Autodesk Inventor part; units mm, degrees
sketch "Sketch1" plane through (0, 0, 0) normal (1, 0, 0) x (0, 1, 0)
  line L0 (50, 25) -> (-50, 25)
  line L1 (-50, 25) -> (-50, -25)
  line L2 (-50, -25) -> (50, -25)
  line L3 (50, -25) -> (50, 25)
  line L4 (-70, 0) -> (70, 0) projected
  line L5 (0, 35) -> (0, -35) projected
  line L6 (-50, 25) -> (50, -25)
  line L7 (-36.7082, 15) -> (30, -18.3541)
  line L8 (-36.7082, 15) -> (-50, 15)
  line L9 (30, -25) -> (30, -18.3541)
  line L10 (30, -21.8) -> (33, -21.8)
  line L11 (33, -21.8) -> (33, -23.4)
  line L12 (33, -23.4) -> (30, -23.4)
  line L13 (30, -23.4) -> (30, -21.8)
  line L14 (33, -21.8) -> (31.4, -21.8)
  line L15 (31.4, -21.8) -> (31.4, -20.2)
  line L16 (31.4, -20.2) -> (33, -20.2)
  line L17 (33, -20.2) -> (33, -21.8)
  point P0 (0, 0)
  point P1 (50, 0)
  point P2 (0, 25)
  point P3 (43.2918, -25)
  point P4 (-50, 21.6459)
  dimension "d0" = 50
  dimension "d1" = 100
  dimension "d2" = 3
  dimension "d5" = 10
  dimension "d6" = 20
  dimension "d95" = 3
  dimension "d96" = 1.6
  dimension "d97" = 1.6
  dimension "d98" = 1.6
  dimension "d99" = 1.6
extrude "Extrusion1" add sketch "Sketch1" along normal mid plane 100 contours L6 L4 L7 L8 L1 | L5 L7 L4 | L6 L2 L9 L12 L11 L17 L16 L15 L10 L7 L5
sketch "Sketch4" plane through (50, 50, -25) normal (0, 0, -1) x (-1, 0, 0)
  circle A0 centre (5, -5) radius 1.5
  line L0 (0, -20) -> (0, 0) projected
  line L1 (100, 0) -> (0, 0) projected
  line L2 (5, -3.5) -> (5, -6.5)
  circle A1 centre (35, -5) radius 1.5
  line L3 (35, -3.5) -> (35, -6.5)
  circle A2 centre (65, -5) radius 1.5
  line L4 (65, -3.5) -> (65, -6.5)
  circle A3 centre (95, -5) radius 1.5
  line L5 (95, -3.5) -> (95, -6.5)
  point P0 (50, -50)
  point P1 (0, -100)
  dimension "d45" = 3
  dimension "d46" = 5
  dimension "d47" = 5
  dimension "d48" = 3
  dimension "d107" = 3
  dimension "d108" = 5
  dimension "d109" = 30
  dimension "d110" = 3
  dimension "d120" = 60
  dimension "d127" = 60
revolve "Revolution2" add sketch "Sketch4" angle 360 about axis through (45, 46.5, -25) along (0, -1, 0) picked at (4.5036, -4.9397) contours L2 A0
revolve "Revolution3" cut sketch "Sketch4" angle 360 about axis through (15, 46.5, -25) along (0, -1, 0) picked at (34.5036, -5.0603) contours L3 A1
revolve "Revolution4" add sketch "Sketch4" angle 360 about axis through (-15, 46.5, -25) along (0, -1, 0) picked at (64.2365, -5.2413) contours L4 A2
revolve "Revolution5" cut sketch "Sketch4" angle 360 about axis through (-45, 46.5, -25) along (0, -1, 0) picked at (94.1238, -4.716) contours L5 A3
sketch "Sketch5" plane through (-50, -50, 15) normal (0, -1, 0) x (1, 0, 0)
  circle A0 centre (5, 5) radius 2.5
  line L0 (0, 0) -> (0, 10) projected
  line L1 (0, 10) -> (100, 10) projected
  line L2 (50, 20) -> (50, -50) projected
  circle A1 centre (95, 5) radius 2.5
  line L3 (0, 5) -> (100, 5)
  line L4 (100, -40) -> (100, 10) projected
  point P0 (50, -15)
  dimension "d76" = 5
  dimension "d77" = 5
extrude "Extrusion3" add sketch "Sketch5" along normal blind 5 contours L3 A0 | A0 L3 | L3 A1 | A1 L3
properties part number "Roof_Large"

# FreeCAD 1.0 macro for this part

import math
import FreeCAD as App
import Part
import Sketcher

V = App.Vector
Q = App.Units.Quantity

doc = App.newDocument("Part")
body = doc.addObject("PartDesign::Body", "Body")

# Sketch on YZ plane
sketch1 = body.newObject("Sketcher::SketchObject", "Sketch")
sketch1.AttachmentSupport = (doc.getObject("YZ_Plane"), [""])
sketch1.MapMode = "FlatFace"
sketch1.addGeometry([
    Part.LineSegment(V(-50, 25, 0), V(-50, 15, 0)),  # 0
    Part.LineSegment(V(-50, 15, 0), V(-36.7, 15, 0)),  # 1
    Part.LineSegment(V(-36.7, 15, 0), V(30, -18.4, 0)),  # 2
    Part.LineSegment(V(30, -18.4, 0), V(30, -21.8, 0)),  # 3
    Part.LineSegment(V(30, -21.8, 0), V(31.4, -21.8, 0)),  # 4
    Part.LineSegment(V(31.4, -21.8, 0), V(31.4, -20.2, 0)),  # 5
    Part.LineSegment(V(31.4, -20.2, 0), V(33, -20.2, 0)),  # 6
    Part.LineSegment(V(33, -20.2, 0), V(33, -23.4, 0)),  # 7
    Part.LineSegment(V(33, -23.4, 0), V(30, -23.4, 0)),  # 8
    Part.LineSegment(V(30, -23.4, 0), V(30, -25, 0)),  # 9
    Part.LineSegment(V(30, -25, 0), V(50, -25, 0)),  # 10
    Part.LineSegment(V(50, -25, 0), V(-50, 25, 0)),  # 11
], False)
sketch1.addConstraint([
    Sketcher.Constraint("Coincident", 0, 2, 1, 1),
    Sketcher.Constraint("Coincident", 1, 2, 2, 1),
    Sketcher.Constraint("Coincident", 2, 2, 3, 1),
    Sketcher.Constraint("Coincident", 3, 2, 4, 1),
    Sketcher.Constraint("Coincident", 4, 2, 5, 1),
    Sketcher.Constraint("Coincident", 5, 2, 6, 1),
    Sketcher.Constraint("Coincident", 6, 2, 7, 1),
    Sketcher.Constraint("Coincident", 7, 2, 8, 1),
    Sketcher.Constraint("Coincident", 8, 2, 9, 1),
    Sketcher.Constraint("Coincident", 9, 2, 10, 1),
    Sketcher.Constraint("Coincident", 10, 2, 11, 1),
    Sketcher.Constraint("Coincident", 11, 2, 0, 1),
    Sketcher.Constraint("Vertical", 0),
    Sketcher.Constraint("Horizontal", 1),
    Sketcher.Constraint("Vertical", 3),
    Sketcher.Constraint("Horizontal", 4),
    Sketcher.Constraint("Vertical", 5),
    Sketcher.Constraint("Horizontal", 6),
    Sketcher.Constraint("Vertical", 7),
    Sketcher.Constraint("Horizontal", 8),
    Sketcher.Constraint("Vertical", 9),
    Sketcher.Constraint("Horizontal", 10),
    Sketcher.Constraint("Symmetric", 10, 2, 11, 2, -1, 1),
    Sketcher.Constraint("Parallel", 2, 11),
    Sketcher.Constraint("Vertical", 3, 2, 8, 2),
    Sketcher.Constraint("Equal", 6, 5),
    Sketcher.Constraint("Equal", 5, 9),
    Sketcher.Constraint("DistanceX", 8, 2, 8, 1, Q("3 mm")),
    Sketcher.Constraint("DistanceX", 10, 1, 10, 2, Q("20 mm")),
    Sketcher.Constraint("DistanceY", 0, 2, 0, 1, Q("10 mm")),
    Sketcher.Constraint("DistanceX", 6, 1, 6, 2, Q("1.6 mm")),
    Sketcher.Constraint("DistanceX", 0, 2, -1, 1, Q("50 mm")),
    Sketcher.Constraint("DistanceY", 7, 2, 4, 2, Q("1.6 mm")),
    Sketcher.Constraint("DistanceY", -1, 1, 0, 2, Q("15 mm")),
    Sketcher.Constraint("DistanceY", 3, 2, 3, 1, Q("3.446 mm")),
])
pad1 = body.newObject("PartDesign::Pad", "Pad")
pad1.Profile = sketch1
pad1.Length = 100
pad1.Midplane = True

# Sketch on XY plane
sketch2 = body.newObject("Sketcher::SketchObject", "Sketch001")
sketch2.AttachmentSupport = (doc.getObject("XY_Plane"), [""])
sketch2.MapMode = "FlatFace"
sketch2.AttachmentOffset = App.Placement(V(0, 0, -25), App.Rotation())
sketch2.addGeometry([
    Part.LineSegment(V(45, 43.5, 0), V(45, 46.5, 0)),
    Part.ArcOfCircle(Part.Circle(V(45, 45, 0), V(0, 0, 1), 1.5), math.radians(-90), math.radians(90)),
], False)
sketch2.addGeometry(Part.LineSegment(V(45, 46.5, 0), V(45, 43.5, 0)), True)  # axis
sketch2.addConstraint([
    Sketcher.Constraint("Coincident", 0, 1, 1, 1),
    Sketcher.Constraint("Coincident", 1, 2, 0, 2),
    Sketcher.Constraint("Vertical", 0),
    Sketcher.Constraint("Vertical", 2),
    Sketcher.Constraint("Coincident", 2, 1, 1, 2),
    Sketcher.Constraint("Vertical", 1, 3, 0, 1),
    Sketcher.Constraint("Equal", 0, 2),
    Sketcher.Constraint("Radius", 1, Q("1.5 mm")),
    Sketcher.Constraint("DistanceX", -1, 1, 1, 3, Q("45 mm")),
    Sketcher.Constraint("DistanceY", -1, 1, 1, 3, Q("45 mm")),
])
revolution = body.newObject("PartDesign::Revolution", "Revolution")
revolution.Profile = sketch2
revolution.ReferenceAxis = (sketch2, ["Axis0"])
revolution.Angle = 360

# Sketch on XY plane
sketch3 = body.newObject("Sketcher::SketchObject", "Sketch002")
sketch3.AttachmentSupport = (doc.getObject("XY_Plane"), [""])
sketch3.MapMode = "FlatFace"
sketch3.AttachmentOffset = App.Placement(V(0, 0, -25), App.Rotation())
sketch3.addGeometry([
    Part.LineSegment(V(15, 43.5, 0), V(15, 46.5, 0)),
    Part.ArcOfCircle(Part.Circle(V(15, 45, 0), V(0, 0, 1), 1.5), math.radians(-90), math.radians(90)),
], False)
sketch3.addGeometry(Part.LineSegment(V(15, 46.5, 0), V(15, 43.5, 0)), True)  # axis
sketch3.addConstraint([
    Sketcher.Constraint("Coincident", 0, 1, 1, 1),
    Sketcher.Constraint("Coincident", 1, 2, 0, 2),
    Sketcher.Constraint("Vertical", 0),
    Sketcher.Constraint("Vertical", 2),
    Sketcher.Constraint("Coincident", 2, 1, 1, 2),
    Sketcher.Constraint("Vertical", 1, 3, 0, 1),
    Sketcher.Constraint("Equal", 0, 2),
    Sketcher.Constraint("Radius", 1, Q("1.5 mm")),
    Sketcher.Constraint("DistanceX", -1, 1, 1, 3, Q("15 mm")),
    Sketcher.Constraint("DistanceY", -1, 1, 1, 3, Q("45 mm")),
])
groove = body.newObject("PartDesign::Groove", "Groove")
groove.Profile = sketch3
groove.ReferenceAxis = (sketch3, ["Axis0"])
groove.Angle = 360

# Sketch on XY plane
sketch4 = body.newObject("Sketcher::SketchObject", "Sketch003")
sketch4.AttachmentSupport = (doc.getObject("XY_Plane"), [""])
sketch4.MapMode = "FlatFace"
sketch4.AttachmentOffset = App.Placement(V(0, 0, -25), App.Rotation())
sketch4.addGeometry([
    Part.LineSegment(V(-15, 43.5, 0), V(-15, 46.5, 0)),
    Part.ArcOfCircle(Part.Circle(V(-15, 45, 0), V(0, 0, 1), 1.5), math.radians(-90), math.radians(90)),
], False)
sketch4.addGeometry(Part.LineSegment(V(-15, 46.5, 0), V(-15, 43.5, 0)), True)  # axis
sketch4.addConstraint([
    Sketcher.Constraint("Coincident", 0, 1, 1, 1),
    Sketcher.Constraint("Coincident", 1, 2, 0, 2),
    Sketcher.Constraint("Vertical", 0),
    Sketcher.Constraint("Vertical", 2),
    Sketcher.Constraint("Coincident", 2, 1, 1, 2),
    Sketcher.Constraint("Vertical", 1, 3, 0, 1),
    Sketcher.Constraint("Equal", 0, 2),
    Sketcher.Constraint("Radius", 1, Q("1.5 mm")),
    Sketcher.Constraint("DistanceX", 1, 3, -1, 1, Q("15 mm")),
    Sketcher.Constraint("DistanceY", -1, 1, 1, 3, Q("45 mm")),
])
revolution2 = body.newObject("PartDesign::Revolution", "Revolution001")
revolution2.Profile = sketch4
revolution2.ReferenceAxis = (sketch4, ["Axis0"])
revolution2.Angle = 360

# Sketch on XY plane
sketch5 = body.newObject("Sketcher::SketchObject", "Sketch004")
sketch5.AttachmentSupport = (doc.getObject("XY_Plane"), [""])
sketch5.MapMode = "FlatFace"
sketch5.AttachmentOffset = App.Placement(V(0, 0, -25), App.Rotation())
sketch5.addGeometry([
    Part.LineSegment(V(-45, 43.5, 0), V(-45, 46.5, 0)),
    Part.ArcOfCircle(Part.Circle(V(-45, 45, 0), V(0, 0, 1), 1.5), math.radians(-90), math.radians(90)),
], False)
sketch5.addGeometry(Part.LineSegment(V(-45, 46.5, 0), V(-45, 43.5, 0)), True)  # axis
sketch5.addConstraint([
    Sketcher.Constraint("Coincident", 0, 1, 1, 1),
    Sketcher.Constraint("Coincident", 1, 2, 0, 2),
    Sketcher.Constraint("Vertical", 0),
    Sketcher.Constraint("Vertical", 2),
    Sketcher.Constraint("Coincident", 2, 1, 1, 2),
    Sketcher.Constraint("Vertical", 1, 3, 0, 1),
    Sketcher.Constraint("Equal", 0, 2),
    Sketcher.Constraint("Radius", 1, Q("1.5 mm")),
    Sketcher.Constraint("DistanceX", 1, 3, -1, 1, Q("45 mm")),
    Sketcher.Constraint("DistanceY", -1, 1, 1, 3, Q("45 mm")),
])
groove2 = body.newObject("PartDesign::Groove", "Groove001")
groove2.Profile = sketch5
groove2.ReferenceAxis = (sketch5, ["Axis0"])
groove2.Angle = 360

# Sketch on XZ plane
sketch6 = body.newObject("Sketcher::SketchObject", "Sketch005")
sketch6.AttachmentSupport = (doc.getObject("XZ_Plane"), [""])
sketch6.MapMode = "FlatFace"
sketch6.AttachmentOffset = App.Placement(V(0, 0, 50), App.Rotation())
sketch6.addGeometry([
    Part.Circle(V(-45, 20, 0), V(0, 0, 1), 2.5),
    Part.Circle(V(45, 20, 0), V(0, 0, 1), 2.5),
], False)
sketch6.addConstraint([
    Sketcher.Constraint("Equal", 0, 1),
    Sketcher.Constraint("Symmetric", 0, 3, 1, 3, -2),
    Sketcher.Constraint("Diameter", 0, Q("5 mm")),
    Sketcher.Constraint("DistanceX", 0, 3, -1, 1, Q("45 mm")),
    Sketcher.Constraint("DistanceY", -1, 1, 0, 3, Q("20 mm")),
])
pad2 = body.newObject("PartDesign::Pad", "Pad001")
pad2.Profile = sketch6
pad2.Length = 5

doc.recompute()
